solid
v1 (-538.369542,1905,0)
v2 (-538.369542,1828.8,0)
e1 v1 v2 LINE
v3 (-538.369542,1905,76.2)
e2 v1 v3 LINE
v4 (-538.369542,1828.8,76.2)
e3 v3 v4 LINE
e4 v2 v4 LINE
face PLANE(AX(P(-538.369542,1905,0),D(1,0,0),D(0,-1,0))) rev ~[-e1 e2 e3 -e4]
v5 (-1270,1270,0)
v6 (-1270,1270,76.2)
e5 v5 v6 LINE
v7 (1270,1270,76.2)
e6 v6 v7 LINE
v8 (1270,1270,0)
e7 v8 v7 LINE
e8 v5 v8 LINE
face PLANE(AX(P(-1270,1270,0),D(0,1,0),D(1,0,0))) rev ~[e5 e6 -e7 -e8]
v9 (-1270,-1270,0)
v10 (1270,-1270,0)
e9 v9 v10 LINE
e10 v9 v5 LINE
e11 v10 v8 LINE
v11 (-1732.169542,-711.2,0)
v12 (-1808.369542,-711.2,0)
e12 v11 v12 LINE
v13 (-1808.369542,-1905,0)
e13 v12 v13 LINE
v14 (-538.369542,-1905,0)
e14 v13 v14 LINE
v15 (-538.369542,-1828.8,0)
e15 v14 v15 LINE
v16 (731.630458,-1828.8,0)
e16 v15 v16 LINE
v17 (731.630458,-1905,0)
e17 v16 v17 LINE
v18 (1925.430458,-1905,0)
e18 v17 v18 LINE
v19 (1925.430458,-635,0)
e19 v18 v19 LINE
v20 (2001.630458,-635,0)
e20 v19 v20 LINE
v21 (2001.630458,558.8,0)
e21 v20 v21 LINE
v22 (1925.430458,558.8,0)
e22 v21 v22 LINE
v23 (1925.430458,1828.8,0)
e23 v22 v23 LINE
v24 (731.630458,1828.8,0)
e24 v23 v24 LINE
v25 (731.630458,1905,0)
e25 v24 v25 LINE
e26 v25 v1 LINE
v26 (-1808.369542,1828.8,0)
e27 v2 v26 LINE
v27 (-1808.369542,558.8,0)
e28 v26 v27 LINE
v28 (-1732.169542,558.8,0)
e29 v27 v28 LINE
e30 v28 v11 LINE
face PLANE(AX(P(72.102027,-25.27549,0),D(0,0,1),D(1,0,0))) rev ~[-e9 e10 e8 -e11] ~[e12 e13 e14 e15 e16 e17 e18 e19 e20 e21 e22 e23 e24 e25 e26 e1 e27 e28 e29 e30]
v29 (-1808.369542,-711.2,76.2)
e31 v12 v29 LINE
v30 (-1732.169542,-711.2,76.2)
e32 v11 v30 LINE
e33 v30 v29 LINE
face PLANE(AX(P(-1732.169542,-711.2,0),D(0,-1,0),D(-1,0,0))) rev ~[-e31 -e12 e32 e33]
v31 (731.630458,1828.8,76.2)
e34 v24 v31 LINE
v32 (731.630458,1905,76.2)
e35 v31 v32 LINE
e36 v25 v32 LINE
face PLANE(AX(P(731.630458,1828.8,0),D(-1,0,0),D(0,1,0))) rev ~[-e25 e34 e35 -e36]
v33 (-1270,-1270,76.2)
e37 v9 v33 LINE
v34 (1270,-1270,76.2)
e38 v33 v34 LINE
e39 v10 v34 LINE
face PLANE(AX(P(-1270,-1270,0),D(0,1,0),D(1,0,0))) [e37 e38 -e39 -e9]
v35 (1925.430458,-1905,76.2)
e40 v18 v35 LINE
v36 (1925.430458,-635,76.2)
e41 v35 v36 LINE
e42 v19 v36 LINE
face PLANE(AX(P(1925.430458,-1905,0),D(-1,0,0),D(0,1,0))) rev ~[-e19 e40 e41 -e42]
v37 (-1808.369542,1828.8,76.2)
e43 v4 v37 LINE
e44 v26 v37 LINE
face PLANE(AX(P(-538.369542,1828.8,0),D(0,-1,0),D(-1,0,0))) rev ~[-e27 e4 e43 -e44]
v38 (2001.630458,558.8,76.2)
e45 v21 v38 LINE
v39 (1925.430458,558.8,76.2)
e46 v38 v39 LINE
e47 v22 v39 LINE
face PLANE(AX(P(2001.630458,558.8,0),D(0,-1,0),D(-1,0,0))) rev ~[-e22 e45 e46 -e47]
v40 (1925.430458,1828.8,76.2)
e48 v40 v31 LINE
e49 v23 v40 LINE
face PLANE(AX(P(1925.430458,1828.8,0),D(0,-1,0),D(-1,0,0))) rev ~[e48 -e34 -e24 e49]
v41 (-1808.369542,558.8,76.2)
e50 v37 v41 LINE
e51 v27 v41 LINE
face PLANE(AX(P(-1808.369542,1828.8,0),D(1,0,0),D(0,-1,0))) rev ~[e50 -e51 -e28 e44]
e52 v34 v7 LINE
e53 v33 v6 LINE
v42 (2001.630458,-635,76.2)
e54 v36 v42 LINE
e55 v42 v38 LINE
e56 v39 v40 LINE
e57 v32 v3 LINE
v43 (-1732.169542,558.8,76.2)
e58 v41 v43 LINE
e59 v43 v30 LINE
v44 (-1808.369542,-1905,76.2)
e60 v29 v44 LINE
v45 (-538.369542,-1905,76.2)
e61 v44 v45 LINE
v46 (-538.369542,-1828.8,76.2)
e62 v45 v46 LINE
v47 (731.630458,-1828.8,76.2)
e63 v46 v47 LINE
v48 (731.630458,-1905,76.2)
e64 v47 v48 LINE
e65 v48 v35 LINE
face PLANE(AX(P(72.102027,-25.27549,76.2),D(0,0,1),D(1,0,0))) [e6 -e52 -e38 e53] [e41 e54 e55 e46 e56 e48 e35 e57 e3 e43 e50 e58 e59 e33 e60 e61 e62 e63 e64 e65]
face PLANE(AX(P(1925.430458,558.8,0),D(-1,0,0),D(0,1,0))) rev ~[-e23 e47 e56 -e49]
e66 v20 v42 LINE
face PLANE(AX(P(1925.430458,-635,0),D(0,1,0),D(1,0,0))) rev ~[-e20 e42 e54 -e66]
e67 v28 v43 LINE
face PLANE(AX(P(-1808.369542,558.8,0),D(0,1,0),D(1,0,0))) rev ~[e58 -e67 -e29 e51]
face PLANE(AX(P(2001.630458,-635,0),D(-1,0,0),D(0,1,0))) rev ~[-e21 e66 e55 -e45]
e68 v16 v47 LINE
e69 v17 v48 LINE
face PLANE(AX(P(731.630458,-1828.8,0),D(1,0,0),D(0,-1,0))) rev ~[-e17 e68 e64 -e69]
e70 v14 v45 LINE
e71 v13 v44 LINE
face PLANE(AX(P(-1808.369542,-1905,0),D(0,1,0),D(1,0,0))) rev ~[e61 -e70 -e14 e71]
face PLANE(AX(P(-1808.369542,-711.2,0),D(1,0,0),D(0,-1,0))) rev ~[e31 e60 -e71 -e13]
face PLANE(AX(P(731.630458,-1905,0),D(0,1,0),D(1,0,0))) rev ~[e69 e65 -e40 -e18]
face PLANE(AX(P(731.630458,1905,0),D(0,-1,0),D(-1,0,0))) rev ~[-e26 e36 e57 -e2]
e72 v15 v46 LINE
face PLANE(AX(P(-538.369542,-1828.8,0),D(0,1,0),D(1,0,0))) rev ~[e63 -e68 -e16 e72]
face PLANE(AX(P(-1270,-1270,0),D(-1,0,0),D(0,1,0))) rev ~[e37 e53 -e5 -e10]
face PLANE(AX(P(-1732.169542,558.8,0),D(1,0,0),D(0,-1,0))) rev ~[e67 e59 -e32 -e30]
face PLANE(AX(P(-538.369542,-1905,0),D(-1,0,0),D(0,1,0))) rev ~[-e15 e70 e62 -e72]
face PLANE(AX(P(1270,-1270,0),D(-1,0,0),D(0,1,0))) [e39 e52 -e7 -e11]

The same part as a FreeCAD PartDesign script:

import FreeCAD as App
import Part
import Sketcher
Q = App.Units.Quantity

doc = App.newDocument("Part")
body = doc.addObject("PartDesign::Body", "Body")

sketch1 = body.newObject("Sketcher::SketchObject", "Sketch")
sketch1.AttachmentSupport = (doc.getObject("XY_Plane"), [""])
sketch1.MapMode = "FlatFace"
sketch1.addGeometry(Part.LineSegment(App.Vector(731.630458, 1828.8, 0), App.Vector(731.630458, 1905, 0)), False)
sketch1.addGeometry(Part.LineSegment(App.Vector(731.630458, 1905, 0), App.Vector(-538.369542, 1905, 0)), False)
sketch1.addGeometry(Part.LineSegment(App.Vector(-538.369542, 1905, 0), App.Vector(-538.369542, 1828.8, 0)), False)
sketch1.addGeometry(Part.LineSegment(App.Vector(-538.369542, 1828.8, 0), App.Vector(-1808.369542, 1828.8, 0)), False)
sketch1.addGeometry(Part.LineSegment(App.Vector(-1808.369542, 1828.8, 0), App.Vector(-1808.369542, 558.8, 0)), False)
sketch1.addGeometry(Part.LineSegment(App.Vector(-1808.369542, 558.8, 0), App.Vector(-1732.169542, 558.8, 0)), False)
sketch1.addGeometry(Part.LineSegment(App.Vector(-1732.169542, 558.8, 0), App.Vector(-1732.169542, -711.2, 0)), False)
sketch1.addGeometry(Part.LineSegment(App.Vector(-1732.169542, -711.2, 0), App.Vector(-1808.369542, -711.2, 0)), False)
sketch1.addGeometry(Part.LineSegment(App.Vector(-1808.369542, -711.2, 0), App.Vector(-1808.369542, -1905, 0)), False)
sketch1.addGeometry(Part.LineSegment(App.Vector(-1808.369542, -1905, 0), App.Vector(-538.369542, -1905, 0)), False)
sketch1.addGeometry(Part.LineSegment(App.Vector(-538.369542, -1905, 0), App.Vector(-538.369542, -1828.8, 0)), False)
sketch1.addGeometry(Part.LineSegment(App.Vector(-538.369542, -1828.8, 0), App.Vector(731.630458, -1828.8, 0)), False)
sketch1.addGeometry(Part.LineSegment(App.Vector(731.630458, -1828.8, 0), App.Vector(731.630458, -1905, 0)), False)
sketch1.addGeometry(Part.LineSegment(App.Vector(731.630458, -1905, 0), App.Vector(1925.430458, -1905, 0)), False)
sketch1.addGeometry(Part.LineSegment(App.Vector(1925.430458, -1905, 0), App.Vector(1925.430458, -635, 0)), False)
sketch1.addGeometry(Part.LineSegment(App.Vector(1925.430458, -635, 0), App.Vector(2001.630458, -635, 0)), False)
sketch1.addGeometry(Part.LineSegment(App.Vector(2001.630458, -635, 0), App.Vector(2001.630458, 558.8, 0)), False)
sketch1.addGeometry(Part.LineSegment(App.Vector(2001.630458, 558.8, 0), App.Vector(1925.430458, 558.8, 0)), False)
sketch1.addGeometry(Part.LineSegment(App.Vector(1925.430458, 558.8, 0), App.Vector(1925.430458, 1828.8, 0)), False)
sketch1.addGeometry(Part.LineSegment(App.Vector(1925.430458, 1828.8, 0), App.Vector(731.630458, 1828.8, 0)), False)
sketch1.addGeometry(Part.LineSegment(App.Vector(1270, -1270, 0), App.Vector(-1270, -1270, 0)), False)
sketch1.addGeometry(Part.LineSegment(App.Vector(-1270, -1270, 0), App.Vector(-1270, 1270, 0)), False)
sketch1.addGeometry(Part.LineSegment(App.Vector(-1270, 1270, 0), App.Vector(1270, 1270, 0)), False)
sketch1.addGeometry(Part.LineSegment(App.Vector(1270, 1270, 0), App.Vector(1270, -1270, 0)), False)
sketch1.addConstraint(Sketcher.Constraint("Coincident", 0, 2, 1, 1))
sketch1.addConstraint(Sketcher.Constraint("Coincident", 1, 2, 2, 1))
sketch1.addConstraint(Sketcher.Constraint("Coincident", 2, 2, 3, 1))
sketch1.addConstraint(Sketcher.Constraint("Coincident", 3, 2, 4, 1))
sketch1.addConstraint(Sketcher.Constraint("Coincident", 4, 2, 5, 1))
sketch1.addConstraint(Sketcher.Constraint("Coincident", 5, 2, 6, 1))
sketch1.addConstraint(Sketcher.Constraint("Coincident", 6, 2, 7, 1))
sketch1.addConstraint(Sketcher.Constraint("Coincident", 7, 2, 8, 1))
sketch1.addConstraint(Sketcher.Constraint("Coincident", 8, 2, 9, 1))
sketch1.addConstraint(Sketcher.Constraint("Coincident", 9, 2, 10, 1))
sketch1.addConstraint(Sketcher.Constraint("Coincident", 10, 2, 11, 1))
sketch1.addConstraint(Sketcher.Constraint("Coincident", 11, 2, 12, 1))
sketch1.addConstraint(Sketcher.Constraint("Coincident", 12, 2, 13, 1))
sketch1.addConstraint(Sketcher.Constraint("Coincident", 13, 2, 14, 1))
sketch1.addConstraint(Sketcher.Constraint("Coincident", 14, 2, 15, 1))
sketch1.addConstraint(Sketcher.Constraint("Coincident", 15, 2, 16, 1))
sketch1.addConstraint(Sketcher.Constraint("Coincident", 16, 2, 17, 1))
sketch1.addConstraint(Sketcher.Constraint("Coincident", 17, 2, 18, 1))
sketch1.addConstraint(Sketcher.Constraint("Coincident", 18, 2, 19, 1))
sketch1.addConstraint(Sketcher.Constraint("Coincident", 19, 2, 0, 1))
sketch1.addConstraint(Sketcher.Constraint("Coincident", 20, 2, 21, 1))
sketch1.addConstraint(Sketcher.Constraint("Coincident", 21, 2, 22, 1))
sketch1.addConstraint(Sketcher.Constraint("Coincident", 22, 2, 23, 1))
sketch1.addConstraint(Sketcher.Constraint("Coincident", 23, 2, 20, 1))
sketch1.addConstraint(Sketcher.Constraint("Vertical", 0))
sketch1.addConstraint(Sketcher.Constraint("Horizontal", 1))
sketch1.addConstraint(Sketcher.Constraint("Vertical", 2))
sketch1.addConstraint(Sketcher.Constraint("Horizontal", 3))
sketch1.addConstraint(Sketcher.Constraint("Vertical", 4))
sketch1.addConstraint(Sketcher.Constraint("Horizontal", 5))
sketch1.addConstraint(Sketcher.Constraint("Vertical", 6))
sketch1.addConstraint(Sketcher.Constraint("Horizontal", 7))
sketch1.addConstraint(Sketcher.Constraint("Vertical", 8))
sketch1.addConstraint(Sketcher.Constraint("Horizontal", 9))
sketch1.addConstraint(Sketcher.Constraint("Vertical", 10))
sketch1.addConstraint(Sketcher.Constraint("Horizontal", 11))
sketch1.addConstraint(Sketcher.Constraint("Vertical", 12))
sketch1.addConstraint(Sketcher.Constraint("Horizontal", 13))
sketch1.addConstraint(Sketcher.Constraint("Vertical", 14))
sketch1.addConstraint(Sketcher.Constraint("Horizontal", 15))
sketch1.addConstraint(Sketcher.Constraint("Vertical", 16))
sketch1.addConstraint(Sketcher.Constraint("Horizontal", 17))
sketch1.addConstraint(Sketcher.Constraint("Vertical", 18))
sketch1.addConstraint(Sketcher.Constraint("Horizontal", 19))
sketch1.addConstraint(Sketcher.Constraint("Horizontal", 20))
sketch1.addConstraint(Sketcher.Constraint("Vertical", 21))
sketch1.addConstraint(Sketcher.Constraint("Horizontal", 22))
sketch1.addConstraint(Sketcher.Constraint("Vertical", 23))
sketch1.addConstraint(Sketcher.Constraint("Symmetric", 20, 2, 22, 2, -1, 1))
sketch1.addConstraint(Sketcher.Constraint("Symmetric", 1, 2, 9, 2, -1))
sketch1.addConstraint(Sketcher.Constraint("Symmetric", 0, 2, 12, 2, -1))
sketch1.addConstraint(Sketcher.Constraint("Horizontal", 5, 2, 16, 2))
sketch1.addConstraint(Sketcher.Constraint("Horizontal", 3, 2, 18, 2))
sketch1.addConstraint(Sketcher.Constraint("Vertical", 4, 2, 7, 2))
sketch1.addConstraint(Sketcher.Constraint("Vertical", 14, 2, 17, 2))
sketch1.addConstraint(Sketcher.Constraint("Equal", 1, 3))
sketch1.addConstraint(Sketcher.Constraint("Equal", 7, 15))
sketch1.addConstraint(Sketcher.Constraint("Equal", 17, 0))
sketch1.addConstraint(Sketcher.Constraint("Equal", 11, 4))
sketch1.addConstraint(Sketcher.Constraint("Equal", 4, 6))
sketch1.addConstraint(Sketcher.Constraint("Equal", 19, 8))
sketch1.addConstraint(Sketcher.Constraint("Equal", 2, 10))
sketch1.addConstraint(Sketcher.Constraint("Equal", 6, 14))
sketch1.addConstraint(Sketcher.Constraint("Equal", 22, 21))
sketch1.addConstraint(Sketcher.Constraint("DistanceX", 1, 2, 1, 1, Q("50 in")))
sketch1.addConstraint(Sketcher.Constraint("DistanceX", 5, 1, 5, 2, Q("3 in")))
sketch1.addConstraint(Sketcher.Constraint("DistanceX", 13, 1, 13, 2, Q("47 in")))
sketch1.addConstraint(Sketcher.Constraint("DistanceX", 20, 2, 20, 1, Q("100 in")))
sketch1.addConstraint(Sketcher.Constraint("DistanceX", -1, 1, 0, 2, Q("731.630458 mm")))
pad1 = body.newObject("PartDesign::Pad", "Pad")
pad1.Profile = sketch1
pad1.Length = Q("3 in")

doc.recompute()
